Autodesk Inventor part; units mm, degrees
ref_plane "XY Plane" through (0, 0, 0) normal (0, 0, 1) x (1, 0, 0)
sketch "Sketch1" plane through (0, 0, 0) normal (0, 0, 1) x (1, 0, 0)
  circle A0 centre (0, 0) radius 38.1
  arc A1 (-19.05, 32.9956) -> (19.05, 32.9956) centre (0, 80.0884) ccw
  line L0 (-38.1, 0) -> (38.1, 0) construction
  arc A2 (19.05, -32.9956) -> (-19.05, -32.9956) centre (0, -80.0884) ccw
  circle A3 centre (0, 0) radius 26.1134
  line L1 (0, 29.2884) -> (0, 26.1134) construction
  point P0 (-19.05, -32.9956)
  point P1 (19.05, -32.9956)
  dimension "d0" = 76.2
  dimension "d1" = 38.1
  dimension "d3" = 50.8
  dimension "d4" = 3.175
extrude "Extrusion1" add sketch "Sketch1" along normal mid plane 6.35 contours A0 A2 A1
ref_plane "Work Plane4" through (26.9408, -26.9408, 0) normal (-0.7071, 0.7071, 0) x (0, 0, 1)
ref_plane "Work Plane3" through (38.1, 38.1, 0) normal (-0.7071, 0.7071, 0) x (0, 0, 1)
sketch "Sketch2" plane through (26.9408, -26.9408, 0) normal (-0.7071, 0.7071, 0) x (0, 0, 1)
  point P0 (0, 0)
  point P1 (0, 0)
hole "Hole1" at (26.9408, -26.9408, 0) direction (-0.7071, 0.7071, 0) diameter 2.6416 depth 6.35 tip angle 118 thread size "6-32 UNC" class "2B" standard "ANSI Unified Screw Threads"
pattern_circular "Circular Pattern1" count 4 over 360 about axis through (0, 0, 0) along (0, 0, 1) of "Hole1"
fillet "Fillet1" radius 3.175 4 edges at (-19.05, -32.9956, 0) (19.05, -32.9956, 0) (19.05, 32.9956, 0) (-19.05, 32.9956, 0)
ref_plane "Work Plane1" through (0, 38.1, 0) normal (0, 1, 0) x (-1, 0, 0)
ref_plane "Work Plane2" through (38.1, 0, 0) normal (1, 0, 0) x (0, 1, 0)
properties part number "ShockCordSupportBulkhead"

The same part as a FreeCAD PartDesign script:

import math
import FreeCAD as App
import Part
import Sketcher
Q = App.Units.Quantity


def edges_at(feature, points):
    """Names of the edges that pass closest to the given points."""
    edges = feature.Shape.Edges
    near = lambda p: min(range(len(edges)), key=lambda i: edges[i].distToShape(Part.Vertex(*p))[0])
    return sorted({f"Edge{near(p) + 1}" for p in points})

doc = App.newDocument("Part")
body = doc.addObject("PartDesign::Body", "Body")

# Sketch on XY plane
sketch1 = body.newObject("Sketcher::SketchObject", "Sketch")
sketch1.AttachmentSupport = (doc.getObject("XY_Plane"), [""])
sketch1.MapMode = "FlatFace"
sketch1.addGeometry([
    Part.ArcOfCircle(Part.Circle(App.Vector(0, 0, 0), App.Vector(0, 0, 1), 38), math.radians(-60), math.radians(60)),  # 0
    Part.ArcOfCircle(Part.Circle(App.Vector(0, 80, 0), App.Vector(0, 0, 1), 51), math.radians(-112), math.radians(-68)),  # 1
    Part.ArcOfCircle(Part.Circle(App.Vector(0, 0, 0), App.Vector(0, 0, 1), 38), math.radians(120), math.radians(240)),  # 2
    Part.ArcOfCircle(Part.Circle(App.Vector(0, -80, 0), App.Vector(0, 0, 1), 51), math.radians(68), math.radians(112)),  # 3
    Part.Circle(App.Vector(0, 0, 0), App.Vector(0, 0, 1), 26),  # 4
], False)
sketch1.addConstraint([
    Sketcher.Constraint("Coincident", 0, 2, 1, 2),
    Sketcher.Constraint("Coincident", 1, 1, 2, 1),
    Sketcher.Constraint("Coincident", 2, 2, 3, 2),
    Sketcher.Constraint("Coincident", 3, 1, 0, 1),
    Sketcher.Constraint("Coincident", 0, 3, -1, 1),
    Sketcher.Constraint("Coincident", 2, 3, -1, 1),
    Sketcher.Constraint("Coincident", 4, 3, -1, 1),
    Sketcher.Constraint("Equal", 0, 2),
    Sketcher.Constraint("Equal", 1, 3),
    Sketcher.Constraint("Symmetric", 1, 3, 3, 3, -1, 1),
    Sketcher.Constraint("PointOnObject", 1, 3, -2),
    Sketcher.Constraint("Radius", 1, Q("2 in")),
    Sketcher.Constraint("Radius", 0, Q("1.5 in")),
    Sketcher.Constraint("DistanceX", 1, 1, 0, 2, Q("1.5 in")),
    Sketcher.Constraint("Diameter", 4, Q("52.2268 mm")),
])
pad1 = body.newObject("PartDesign::Pad", "Pad")
pad1.Profile = sketch1
pad1.Length = Q("0.25 in")
pad1.Midplane = True

# Sketch on an angled plane
sketch2 = body.newObject("Sketcher::SketchObject", "Sketch001")
sketch2.Placement = App.Placement(App.Vector(26.9408, -26.9408, 0), App.Rotation(App.Vector(0.707106781, 0.707106781, 0), App.Vector(0, 0, 0.999999999), App.Vector(0.707106781, -0.707106781, 0), "ZXY"))
sketch2.addGeometry(Part.Circle(App.Vector(0, 0, 0), App.Vector(0, 0, 1), 1.3), False)
sketch2.addConstraint([
    Sketcher.Constraint("Coincident", 0, 3, -1, 1),
    Sketcher.Constraint("Diameter", 0, Q("0.104 in")),
])
doc.recompute()
hole = body.newObject("PartDesign::Hole", "Hole")
hole.Profile = sketch2
hole.ThreadType = "None"
hole.Diameter = Q("0.104 in")
hole.DepthType = "Dimension"
hole.Depth = Q("0.25 in")
hole.DrillPoint = "Angled"
hole.DrillPointAngle = 118
doc.recompute()

polarpattern = body.newObject("PartDesign::PolarPattern", "PolarPattern")
polarpattern.Originals = [hole]
polarpattern.Axis = (doc.getObject("Z_Axis"), [""])
polarpattern.Angle = 360
polarpattern.Occurrences = 4
body.Tip = polarpattern
doc.recompute()

fillet = body.newObject("PartDesign::Fillet", "Fillet")
fillet.Base = (polarpattern, edges_at(polarpattern, [
    (-19.05, -32.996, 0),
    (19.05, -32.996, 0),
    (19.05, 32.996, 0),
    (-19.05, 32.996, 0),
]))
fillet.Radius = Q("0.125 in")

doc.recompute()
